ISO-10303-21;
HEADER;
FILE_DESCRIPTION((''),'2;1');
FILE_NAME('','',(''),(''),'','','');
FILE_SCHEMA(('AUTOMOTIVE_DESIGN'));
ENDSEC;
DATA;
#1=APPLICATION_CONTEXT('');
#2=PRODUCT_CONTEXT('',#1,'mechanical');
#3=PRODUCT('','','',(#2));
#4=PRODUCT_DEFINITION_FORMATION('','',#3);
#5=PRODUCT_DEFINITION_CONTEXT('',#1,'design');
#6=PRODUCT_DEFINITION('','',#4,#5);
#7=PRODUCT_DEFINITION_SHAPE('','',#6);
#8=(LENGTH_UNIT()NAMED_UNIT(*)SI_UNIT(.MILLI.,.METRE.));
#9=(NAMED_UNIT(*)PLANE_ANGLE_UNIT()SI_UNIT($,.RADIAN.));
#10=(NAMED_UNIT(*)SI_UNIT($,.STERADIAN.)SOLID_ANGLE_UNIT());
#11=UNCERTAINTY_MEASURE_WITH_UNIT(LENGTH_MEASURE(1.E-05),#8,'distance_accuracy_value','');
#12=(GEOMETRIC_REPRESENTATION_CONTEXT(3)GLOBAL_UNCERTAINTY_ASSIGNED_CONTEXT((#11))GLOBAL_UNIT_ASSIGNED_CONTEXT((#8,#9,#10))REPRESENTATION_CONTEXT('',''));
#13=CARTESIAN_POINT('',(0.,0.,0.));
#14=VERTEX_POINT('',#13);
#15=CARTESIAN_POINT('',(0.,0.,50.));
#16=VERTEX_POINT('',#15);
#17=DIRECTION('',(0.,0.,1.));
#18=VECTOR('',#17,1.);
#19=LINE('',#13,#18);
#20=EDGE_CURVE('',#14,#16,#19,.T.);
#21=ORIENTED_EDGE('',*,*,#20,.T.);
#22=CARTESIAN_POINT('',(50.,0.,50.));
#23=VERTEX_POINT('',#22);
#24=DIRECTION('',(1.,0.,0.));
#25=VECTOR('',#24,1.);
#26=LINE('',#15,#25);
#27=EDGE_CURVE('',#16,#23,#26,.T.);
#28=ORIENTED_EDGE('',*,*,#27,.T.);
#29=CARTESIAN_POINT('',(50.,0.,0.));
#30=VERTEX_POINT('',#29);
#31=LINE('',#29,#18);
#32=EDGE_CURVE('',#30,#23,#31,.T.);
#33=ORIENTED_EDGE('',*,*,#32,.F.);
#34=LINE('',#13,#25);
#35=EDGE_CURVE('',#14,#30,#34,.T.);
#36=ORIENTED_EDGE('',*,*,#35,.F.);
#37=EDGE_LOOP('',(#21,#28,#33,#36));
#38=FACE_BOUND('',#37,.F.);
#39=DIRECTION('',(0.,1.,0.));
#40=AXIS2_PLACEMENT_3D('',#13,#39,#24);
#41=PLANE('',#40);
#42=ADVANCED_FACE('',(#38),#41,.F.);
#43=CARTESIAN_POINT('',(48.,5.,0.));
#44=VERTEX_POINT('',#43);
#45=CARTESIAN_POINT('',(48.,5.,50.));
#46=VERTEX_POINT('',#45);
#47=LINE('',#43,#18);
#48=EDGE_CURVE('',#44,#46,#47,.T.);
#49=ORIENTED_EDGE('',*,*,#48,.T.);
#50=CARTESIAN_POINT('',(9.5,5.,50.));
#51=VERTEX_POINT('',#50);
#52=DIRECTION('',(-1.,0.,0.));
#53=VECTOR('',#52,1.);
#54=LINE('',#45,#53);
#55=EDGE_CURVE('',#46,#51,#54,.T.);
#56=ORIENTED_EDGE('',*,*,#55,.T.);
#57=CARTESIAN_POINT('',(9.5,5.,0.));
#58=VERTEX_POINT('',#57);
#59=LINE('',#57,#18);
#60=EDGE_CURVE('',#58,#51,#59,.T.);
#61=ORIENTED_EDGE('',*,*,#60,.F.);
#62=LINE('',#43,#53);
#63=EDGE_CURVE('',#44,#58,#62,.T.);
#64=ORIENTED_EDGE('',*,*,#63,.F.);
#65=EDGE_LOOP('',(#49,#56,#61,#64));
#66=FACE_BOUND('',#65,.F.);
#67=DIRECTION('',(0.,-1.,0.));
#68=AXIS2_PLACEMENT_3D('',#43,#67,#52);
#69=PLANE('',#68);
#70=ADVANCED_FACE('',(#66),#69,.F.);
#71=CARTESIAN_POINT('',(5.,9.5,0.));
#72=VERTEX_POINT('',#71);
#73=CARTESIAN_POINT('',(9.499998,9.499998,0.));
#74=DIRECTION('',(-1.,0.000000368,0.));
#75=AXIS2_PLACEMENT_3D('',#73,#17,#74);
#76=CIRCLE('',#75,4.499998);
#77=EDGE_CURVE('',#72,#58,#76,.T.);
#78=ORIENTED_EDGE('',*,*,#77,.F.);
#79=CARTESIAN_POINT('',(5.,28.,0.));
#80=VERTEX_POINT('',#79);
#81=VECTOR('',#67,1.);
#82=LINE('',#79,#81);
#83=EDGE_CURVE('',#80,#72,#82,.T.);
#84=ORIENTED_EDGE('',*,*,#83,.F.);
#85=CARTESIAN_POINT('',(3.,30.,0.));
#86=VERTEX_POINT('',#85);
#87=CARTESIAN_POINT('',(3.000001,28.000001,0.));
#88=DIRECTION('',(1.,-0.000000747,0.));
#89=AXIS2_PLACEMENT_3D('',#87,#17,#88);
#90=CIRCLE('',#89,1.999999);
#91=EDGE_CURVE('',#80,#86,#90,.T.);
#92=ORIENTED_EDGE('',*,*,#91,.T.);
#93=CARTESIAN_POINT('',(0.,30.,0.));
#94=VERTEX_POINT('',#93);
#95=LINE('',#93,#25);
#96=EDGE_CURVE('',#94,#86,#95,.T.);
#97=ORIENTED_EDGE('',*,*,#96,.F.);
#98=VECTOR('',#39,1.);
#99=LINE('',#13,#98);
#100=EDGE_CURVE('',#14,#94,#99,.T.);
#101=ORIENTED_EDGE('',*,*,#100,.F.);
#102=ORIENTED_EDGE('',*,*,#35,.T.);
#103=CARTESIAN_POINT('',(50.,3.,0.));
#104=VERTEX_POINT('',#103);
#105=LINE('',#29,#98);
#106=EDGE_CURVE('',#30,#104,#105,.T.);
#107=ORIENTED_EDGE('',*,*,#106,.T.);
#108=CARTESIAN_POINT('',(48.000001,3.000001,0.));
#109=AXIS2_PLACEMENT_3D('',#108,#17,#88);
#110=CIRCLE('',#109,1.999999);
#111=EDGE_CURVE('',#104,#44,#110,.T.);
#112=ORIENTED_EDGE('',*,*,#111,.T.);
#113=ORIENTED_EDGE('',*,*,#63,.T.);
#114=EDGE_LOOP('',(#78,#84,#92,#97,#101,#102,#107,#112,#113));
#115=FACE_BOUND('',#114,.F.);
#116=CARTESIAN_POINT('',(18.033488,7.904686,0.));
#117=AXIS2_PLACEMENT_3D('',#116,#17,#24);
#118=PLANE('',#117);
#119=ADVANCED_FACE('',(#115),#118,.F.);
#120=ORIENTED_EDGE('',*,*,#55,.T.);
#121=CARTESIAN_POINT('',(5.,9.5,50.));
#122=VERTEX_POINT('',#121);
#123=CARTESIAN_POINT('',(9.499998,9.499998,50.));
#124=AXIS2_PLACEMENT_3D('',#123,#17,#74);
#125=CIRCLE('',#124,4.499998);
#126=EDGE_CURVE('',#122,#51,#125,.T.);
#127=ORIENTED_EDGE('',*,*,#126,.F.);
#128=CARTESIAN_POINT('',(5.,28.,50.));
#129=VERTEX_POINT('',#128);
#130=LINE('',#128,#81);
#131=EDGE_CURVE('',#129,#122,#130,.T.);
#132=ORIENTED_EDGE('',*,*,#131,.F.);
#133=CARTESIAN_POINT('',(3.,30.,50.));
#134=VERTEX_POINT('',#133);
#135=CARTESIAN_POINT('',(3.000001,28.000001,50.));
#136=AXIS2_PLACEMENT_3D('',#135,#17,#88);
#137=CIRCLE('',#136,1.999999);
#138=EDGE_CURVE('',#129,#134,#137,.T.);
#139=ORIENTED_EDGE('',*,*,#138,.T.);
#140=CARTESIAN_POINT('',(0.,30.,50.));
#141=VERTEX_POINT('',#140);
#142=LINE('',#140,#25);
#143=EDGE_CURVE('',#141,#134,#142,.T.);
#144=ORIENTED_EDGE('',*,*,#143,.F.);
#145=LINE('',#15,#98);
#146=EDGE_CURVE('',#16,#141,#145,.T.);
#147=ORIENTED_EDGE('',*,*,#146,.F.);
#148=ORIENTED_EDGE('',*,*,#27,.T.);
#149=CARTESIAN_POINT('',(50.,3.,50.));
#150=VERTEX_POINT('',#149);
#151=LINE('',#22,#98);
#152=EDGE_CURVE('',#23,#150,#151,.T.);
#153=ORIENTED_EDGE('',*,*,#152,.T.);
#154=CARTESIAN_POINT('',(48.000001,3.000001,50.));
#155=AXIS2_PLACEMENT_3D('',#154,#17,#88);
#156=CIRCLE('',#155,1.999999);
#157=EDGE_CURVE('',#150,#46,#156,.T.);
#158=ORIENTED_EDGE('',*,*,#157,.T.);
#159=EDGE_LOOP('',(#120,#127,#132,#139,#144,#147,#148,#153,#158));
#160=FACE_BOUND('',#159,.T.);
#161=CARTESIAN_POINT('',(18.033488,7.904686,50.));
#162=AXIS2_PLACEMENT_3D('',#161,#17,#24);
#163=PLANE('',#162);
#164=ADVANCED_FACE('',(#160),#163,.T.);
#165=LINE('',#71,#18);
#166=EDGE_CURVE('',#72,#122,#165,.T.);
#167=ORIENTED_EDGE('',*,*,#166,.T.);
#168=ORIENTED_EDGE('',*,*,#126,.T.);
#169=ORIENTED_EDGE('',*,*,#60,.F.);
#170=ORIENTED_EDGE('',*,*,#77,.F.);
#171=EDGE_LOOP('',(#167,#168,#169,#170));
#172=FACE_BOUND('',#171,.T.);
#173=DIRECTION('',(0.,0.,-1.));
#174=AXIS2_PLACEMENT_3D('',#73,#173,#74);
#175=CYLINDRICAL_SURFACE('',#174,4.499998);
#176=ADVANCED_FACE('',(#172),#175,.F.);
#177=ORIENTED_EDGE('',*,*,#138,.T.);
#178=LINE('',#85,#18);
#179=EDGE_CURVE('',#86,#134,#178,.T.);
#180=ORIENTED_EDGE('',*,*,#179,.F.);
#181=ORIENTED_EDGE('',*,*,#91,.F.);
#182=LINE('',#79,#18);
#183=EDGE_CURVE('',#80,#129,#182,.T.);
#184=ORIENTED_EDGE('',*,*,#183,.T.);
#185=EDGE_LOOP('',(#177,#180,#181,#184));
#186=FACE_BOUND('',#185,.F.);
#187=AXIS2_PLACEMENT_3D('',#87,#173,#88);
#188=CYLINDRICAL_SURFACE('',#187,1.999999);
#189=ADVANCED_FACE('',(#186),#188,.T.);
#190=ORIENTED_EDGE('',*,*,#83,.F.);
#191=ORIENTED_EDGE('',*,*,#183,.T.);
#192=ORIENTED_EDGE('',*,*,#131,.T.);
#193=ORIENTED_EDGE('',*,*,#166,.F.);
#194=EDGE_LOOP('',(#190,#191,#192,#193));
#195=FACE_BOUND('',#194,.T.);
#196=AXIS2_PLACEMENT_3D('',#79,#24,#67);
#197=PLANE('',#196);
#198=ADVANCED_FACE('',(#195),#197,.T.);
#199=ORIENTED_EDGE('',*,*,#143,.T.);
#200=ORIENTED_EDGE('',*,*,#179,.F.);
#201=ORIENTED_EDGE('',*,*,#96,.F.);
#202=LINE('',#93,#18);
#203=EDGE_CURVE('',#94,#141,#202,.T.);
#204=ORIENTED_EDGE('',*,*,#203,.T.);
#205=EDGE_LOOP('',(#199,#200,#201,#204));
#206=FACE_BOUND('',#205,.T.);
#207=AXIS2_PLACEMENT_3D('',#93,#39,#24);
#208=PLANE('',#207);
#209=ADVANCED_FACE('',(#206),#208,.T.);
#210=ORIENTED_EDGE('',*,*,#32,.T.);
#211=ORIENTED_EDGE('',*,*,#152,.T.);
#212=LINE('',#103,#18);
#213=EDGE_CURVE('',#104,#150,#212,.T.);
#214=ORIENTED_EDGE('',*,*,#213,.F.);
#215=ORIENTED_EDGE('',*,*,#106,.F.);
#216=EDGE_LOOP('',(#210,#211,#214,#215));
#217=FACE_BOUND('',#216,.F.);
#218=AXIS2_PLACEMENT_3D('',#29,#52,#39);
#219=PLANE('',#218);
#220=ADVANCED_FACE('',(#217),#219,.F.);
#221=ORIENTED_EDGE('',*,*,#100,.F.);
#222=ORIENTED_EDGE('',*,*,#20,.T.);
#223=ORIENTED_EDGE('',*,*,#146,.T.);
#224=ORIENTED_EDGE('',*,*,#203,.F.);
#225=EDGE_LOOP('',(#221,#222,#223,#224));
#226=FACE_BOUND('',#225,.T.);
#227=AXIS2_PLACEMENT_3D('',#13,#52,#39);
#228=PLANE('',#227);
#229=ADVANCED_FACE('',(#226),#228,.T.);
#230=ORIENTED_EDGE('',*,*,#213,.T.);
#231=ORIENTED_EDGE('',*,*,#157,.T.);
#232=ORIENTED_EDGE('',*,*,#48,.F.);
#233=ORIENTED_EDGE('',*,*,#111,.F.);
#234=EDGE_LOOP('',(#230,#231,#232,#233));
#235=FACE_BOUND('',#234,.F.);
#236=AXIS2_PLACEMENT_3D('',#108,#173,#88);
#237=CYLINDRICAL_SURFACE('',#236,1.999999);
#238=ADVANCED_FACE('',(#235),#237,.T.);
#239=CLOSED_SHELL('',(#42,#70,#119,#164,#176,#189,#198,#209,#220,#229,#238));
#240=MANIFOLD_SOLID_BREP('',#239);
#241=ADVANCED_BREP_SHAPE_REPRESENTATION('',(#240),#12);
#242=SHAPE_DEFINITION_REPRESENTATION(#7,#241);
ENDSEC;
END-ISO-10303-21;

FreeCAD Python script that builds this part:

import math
import FreeCAD as App
import Part
import Sketcher
from FreeCAD import Vector

doc = App.newDocument("Part")
body = doc.addObject("PartDesign::Body", "Body")

# Sketch on XY plane
sketch1 = doc.addObject("Sketcher::SketchObject", "Sketch")
body.addObject(sketch1)
sketch1.AttachmentSupport = (doc.XY_Plane, [""])
sketch1.MapMode = "FlatFace"
sketch1.addGeometry(Part.LineSegment(Vector(0, 0, 0), Vector(50, 0, 0)), False)
sketch1.addGeometry(Part.LineSegment(Vector(50, 0, 0), Vector(50, 3, 0)), False)
sketch1.addGeometry(Part.ArcOfCircle(Part.Circle(Vector(48.000001, 3.000001, 0), Vector(0, 0, 1), 1.999999), math.radians(-0.000043), math.radians(90.000043)), False)
sketch1.addGeometry(Part.LineSegment(Vector(48, 5, 0), Vector(9.5, 5, 0)), False)
sketch1.addGeometry(Part.ArcOfCircle(Part.Circle(Vector(9.499998, 9.499998, 0), Vector(0, 0, 1), 4.499998), math.radians(179.999979), math.radians(270.000021)), False)
sketch1.addGeometry(Part.LineSegment(Vector(5, 9.5, 0), Vector(5, 28, 0)), False)
sketch1.addGeometry(Part.ArcOfCircle(Part.Circle(Vector(3.000001, 28.000001, 0), Vector(0, 0, 1), 1.999999), math.radians(-0.000043), math.radians(90.000043)), False)
sketch1.addGeometry(Part.LineSegment(Vector(3, 30, 0), Vector(0, 30, 0)), False)
sketch1.addGeometry(Part.LineSegment(Vector(0, 30, 0), Vector(0, 0, 0)), False)
sketch1.addConstraint(Sketcher.Constraint("Coincident", 0, 2, 1, 1))
sketch1.addConstraint(Sketcher.Constraint("Tangent", 1, 2, 2, 1))
sketch1.addConstraint(Sketcher.Constraint("Tangent", 2, 2, 3, 1))
sketch1.addConstraint(Sketcher.Constraint("Tangent", 3, 2, 4, 2))
sketch1.addConstraint(Sketcher.Constraint("Tangent", 4, 1, 5, 1))
sketch1.addConstraint(Sketcher.Constraint("Tangent", 5, 2, 6, 1))
sketch1.addConstraint(Sketcher.Constraint("Tangent", 6, 2, 7, 1))
sketch1.addConstraint(Sketcher.Constraint("Coincident", 7, 2, 8, 1))
sketch1.addConstraint(Sketcher.Constraint("Coincident", 8, 2, 0, 1))
sketch1.addConstraint(Sketcher.Constraint("Horizontal", 0))
sketch1.addConstraint(Sketcher.Constraint("Vertical", 1))
sketch1.addConstraint(Sketcher.Constraint("Horizontal", 3))
sketch1.addConstraint(Sketcher.Constraint("Vertical", 5))
sketch1.addConstraint(Sketcher.Constraint("Horizontal", 7))
sketch1.addConstraint(Sketcher.Constraint("Vertical", 8))
sketch1.addConstraint(Sketcher.Constraint("Coincident", 8, 2, -1, 1))
sketch1.addConstraint(Sketcher.Constraint("Equal", 2, 6))
sketch1.addConstraint(Sketcher.Constraint("Equal", 7, 1))
sketch1.addConstraint(Sketcher.Constraint("Radius", 2, 1.999999))
sketch1.addConstraint(Sketcher.Constraint("Radius", 4, 4.499998))
sketch1.addConstraint(Sketcher.Constraint("DistanceX", 0, 1, 0, 2, 50.0))
sketch1.addConstraint(Sketcher.Constraint("DistanceX", 7, 2, 7, 1, 3.0))
sketch1.addConstraint(Sketcher.Constraint("DistanceY", 8, 2, 8, 1, 30.0))
pad1 = doc.addObject("PartDesign::Pad", "Pad")
body.addObject(pad1)
pad1.Profile = sketch1
pad1.Length = 50

doc.recompute()
